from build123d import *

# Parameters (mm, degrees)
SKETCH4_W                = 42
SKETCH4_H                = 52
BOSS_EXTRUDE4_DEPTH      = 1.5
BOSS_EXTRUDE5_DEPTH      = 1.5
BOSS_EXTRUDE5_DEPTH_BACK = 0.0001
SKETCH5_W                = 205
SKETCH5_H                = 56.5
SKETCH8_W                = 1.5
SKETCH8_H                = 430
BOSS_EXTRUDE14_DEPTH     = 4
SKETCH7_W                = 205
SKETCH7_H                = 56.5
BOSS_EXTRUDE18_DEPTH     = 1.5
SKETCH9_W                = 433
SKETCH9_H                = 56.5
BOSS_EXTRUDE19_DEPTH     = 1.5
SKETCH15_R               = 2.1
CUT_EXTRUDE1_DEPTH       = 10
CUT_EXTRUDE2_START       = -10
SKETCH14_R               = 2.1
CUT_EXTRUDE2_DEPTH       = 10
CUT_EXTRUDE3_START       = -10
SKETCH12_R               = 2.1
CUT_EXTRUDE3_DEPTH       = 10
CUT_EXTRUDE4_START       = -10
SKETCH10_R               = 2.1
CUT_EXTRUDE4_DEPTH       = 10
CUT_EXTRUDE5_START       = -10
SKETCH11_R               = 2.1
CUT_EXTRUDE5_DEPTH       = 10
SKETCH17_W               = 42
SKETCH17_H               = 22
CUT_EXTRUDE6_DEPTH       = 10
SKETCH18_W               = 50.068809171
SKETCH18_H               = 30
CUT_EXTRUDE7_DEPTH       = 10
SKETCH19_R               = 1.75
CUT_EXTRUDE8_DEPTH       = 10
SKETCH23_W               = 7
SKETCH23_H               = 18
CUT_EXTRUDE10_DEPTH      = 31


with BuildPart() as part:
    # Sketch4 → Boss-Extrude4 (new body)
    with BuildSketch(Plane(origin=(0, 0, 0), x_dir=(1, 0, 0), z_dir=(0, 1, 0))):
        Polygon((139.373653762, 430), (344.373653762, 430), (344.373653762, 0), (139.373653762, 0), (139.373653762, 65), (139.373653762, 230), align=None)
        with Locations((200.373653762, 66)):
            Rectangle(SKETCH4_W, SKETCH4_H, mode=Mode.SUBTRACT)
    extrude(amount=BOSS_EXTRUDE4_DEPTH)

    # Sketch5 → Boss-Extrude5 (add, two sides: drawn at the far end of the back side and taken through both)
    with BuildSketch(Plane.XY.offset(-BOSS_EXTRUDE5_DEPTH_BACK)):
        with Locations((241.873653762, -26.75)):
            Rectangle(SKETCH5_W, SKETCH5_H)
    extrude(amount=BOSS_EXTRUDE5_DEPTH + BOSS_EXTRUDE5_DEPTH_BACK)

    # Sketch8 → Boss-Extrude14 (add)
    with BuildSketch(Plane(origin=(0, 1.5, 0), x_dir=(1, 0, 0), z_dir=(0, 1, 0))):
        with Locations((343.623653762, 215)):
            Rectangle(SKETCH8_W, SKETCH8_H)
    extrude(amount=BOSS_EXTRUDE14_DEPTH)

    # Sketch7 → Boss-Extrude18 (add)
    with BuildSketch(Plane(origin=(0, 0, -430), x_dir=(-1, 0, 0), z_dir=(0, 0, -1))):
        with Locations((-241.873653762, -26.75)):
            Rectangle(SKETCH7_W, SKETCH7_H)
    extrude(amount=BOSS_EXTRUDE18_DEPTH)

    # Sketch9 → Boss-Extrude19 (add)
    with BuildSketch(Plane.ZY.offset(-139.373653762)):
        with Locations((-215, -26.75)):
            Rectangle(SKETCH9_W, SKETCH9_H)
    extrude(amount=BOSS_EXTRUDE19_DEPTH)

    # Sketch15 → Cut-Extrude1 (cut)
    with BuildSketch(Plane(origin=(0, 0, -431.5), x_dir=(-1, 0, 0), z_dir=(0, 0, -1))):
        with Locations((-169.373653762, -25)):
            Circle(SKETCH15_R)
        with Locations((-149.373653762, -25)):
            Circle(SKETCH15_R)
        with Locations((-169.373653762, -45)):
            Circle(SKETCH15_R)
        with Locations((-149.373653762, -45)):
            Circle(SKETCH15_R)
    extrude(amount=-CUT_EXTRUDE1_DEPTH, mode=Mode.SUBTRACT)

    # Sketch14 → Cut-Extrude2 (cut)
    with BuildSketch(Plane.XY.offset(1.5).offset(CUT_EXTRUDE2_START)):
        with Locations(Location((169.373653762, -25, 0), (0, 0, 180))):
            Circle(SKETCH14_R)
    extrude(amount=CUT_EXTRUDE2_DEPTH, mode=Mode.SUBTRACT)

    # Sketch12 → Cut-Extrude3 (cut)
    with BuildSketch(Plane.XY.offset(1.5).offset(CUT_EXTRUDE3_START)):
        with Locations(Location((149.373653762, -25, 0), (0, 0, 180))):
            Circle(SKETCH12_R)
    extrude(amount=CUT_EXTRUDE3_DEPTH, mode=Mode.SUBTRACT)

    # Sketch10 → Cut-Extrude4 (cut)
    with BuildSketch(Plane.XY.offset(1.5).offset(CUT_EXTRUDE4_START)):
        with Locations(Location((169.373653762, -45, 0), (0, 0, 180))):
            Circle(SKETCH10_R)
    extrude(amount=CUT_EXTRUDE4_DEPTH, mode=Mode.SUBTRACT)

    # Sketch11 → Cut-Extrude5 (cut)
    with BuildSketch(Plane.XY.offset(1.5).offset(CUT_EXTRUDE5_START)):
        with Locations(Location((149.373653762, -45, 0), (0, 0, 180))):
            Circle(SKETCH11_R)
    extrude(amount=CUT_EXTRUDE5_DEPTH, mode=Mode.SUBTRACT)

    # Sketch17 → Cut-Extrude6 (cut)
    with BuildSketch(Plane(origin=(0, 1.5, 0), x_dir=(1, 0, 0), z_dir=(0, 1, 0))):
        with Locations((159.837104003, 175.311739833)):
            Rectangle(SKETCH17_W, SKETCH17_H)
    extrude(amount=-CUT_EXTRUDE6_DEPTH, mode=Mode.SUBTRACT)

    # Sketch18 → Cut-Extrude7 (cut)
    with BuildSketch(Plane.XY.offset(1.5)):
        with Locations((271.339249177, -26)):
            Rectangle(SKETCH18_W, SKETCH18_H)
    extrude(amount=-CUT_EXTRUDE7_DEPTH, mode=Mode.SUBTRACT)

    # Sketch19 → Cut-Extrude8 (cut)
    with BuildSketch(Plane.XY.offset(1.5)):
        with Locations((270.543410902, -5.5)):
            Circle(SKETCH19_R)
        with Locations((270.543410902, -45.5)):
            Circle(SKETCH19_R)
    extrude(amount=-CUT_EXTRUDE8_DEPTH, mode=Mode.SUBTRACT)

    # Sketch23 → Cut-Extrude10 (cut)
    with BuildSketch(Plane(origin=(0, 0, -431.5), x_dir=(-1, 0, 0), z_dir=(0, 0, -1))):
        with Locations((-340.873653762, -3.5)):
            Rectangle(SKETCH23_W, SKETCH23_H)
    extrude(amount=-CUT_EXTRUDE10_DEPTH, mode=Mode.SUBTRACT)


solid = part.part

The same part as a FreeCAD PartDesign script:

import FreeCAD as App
import Part
import Sketcher
from FreeCAD import Vector


def add_polygon(sketch, points):
    """Adds a closed chain of lines whose ends are joined by coincident constraints."""
    first, n = sketch.GeometryCount, len(points)
    for a, b in zip(points, points[1:] + points[:1]):
        sketch.addGeometry(Part.LineSegment(App.Vector(*a, 0), App.Vector(*b, 0)), False)
    for i in range(n):
        sketch.addConstraint(Sketcher.Constraint("Coincident", first + i, 2, first + (i + 1) % n, 1))

doc = App.newDocument("Part")
params = doc.addObject("Spreadsheet::Sheet", "Params")
for row, (alias, value) in enumerate([
    ("sketch1_width", "205 mm"),
    ("sketch1_width2", "42 mm"),
    ("sketch1_height", "430 mm"),
    ("sketch1_height2", "52 mm"),
    ("pad1_length", "1.5 mm"),
    ("sketch2_width", "205 mm"),
    ("sketch2_height", "56.5 mm"),
    ("pad2_length", "1.5 mm"),
    ("pad2_length2", "0.0001 mm"),
    ("sketch3_height", "430 mm"),
    ("sketch3_width", "1.5 mm"),
    ("pad3_length", "4 mm"),
    ("sketch4_width", "205 mm"),
    ("sketch4_height", "56.5 mm"),
    ("pad4_length", "1.5 mm"),
    ("sketch5_height", "433 mm"),
    ("sketch5_width", "56.5 mm"),
    ("pad5_length", "1.5 mm"),
    ("sketch6_diameter", "4.2 mm"),
    ("pocket1_length", "10 mm"),
    ("sketch7_diameter", "4.2 mm"),
    ("pocket2_length", "10 mm"),
    ("sketch8_diameter", "4.2 mm"),
    ("pocket3_length", "10 mm"),
    ("sketch9_diameter", "4.2 mm"),
    ("pocket4_length", "10 mm"),
    ("sketch10_diameter", "4.2 mm"),
    ("pocket5_length", "10 mm"),
    ("sketch11_width", "42 mm"),
    ("sketch11_height", "22 mm"),
    ("pocket6_length", "10 mm"),
    ("sketch12_height", "30 mm"),
    ("pocket7_length", "10 mm"),
    ("sketch13_diameter", "3.5 mm"),
    ("pocket8_length", "10 mm"),
    ("sketch14_width", "7 mm"),
    ("sketch14_height", "18 mm"),
    ("pocket9_length", "31 mm"),
], start=1):
    params.set(f"A{row}", alias)
    params.set(f"B{row}", "=" + value)
    params.setAlias(f"B{row}", alias)

body = doc.addObject("PartDesign::Body", "Body")

sketch1 = body.newObject("Sketcher::SketchObject", "Sketch")
sketch1.AttachmentSupport = (doc.getObject("XZ_Plane"), [""])
sketch1.MapMode = "FlatFace"
add_polygon(sketch1, [(344.373654, -430), (139.373654, -430), (139.373654, 0), (344.373654, 0)])
add_polygon(sketch1, [(179.373654, -40), (179.373654, -92), (221.373654, -92), (221.373654, -40)])
sketch1.addConstraint([
    Sketcher.Constraint("Horizontal", 0),
    Sketcher.Constraint("Vertical", 1),
    Sketcher.Constraint("Horizontal", 2),
    Sketcher.Constraint("Vertical", 3),
    Sketcher.Constraint("Vertical", 4),
    Sketcher.Constraint("Horizontal", 5),
    Sketcher.Constraint("Vertical", 6),
    Sketcher.Constraint("Horizontal", 7),
    Sketcher.Constraint("PointOnObject", 1, 2, -1),
    Sketcher.Constraint("DistanceX", 0, 2, 0, 1, 205.0),
    Sketcher.Constraint("DistanceX", 5, 1, 5, 2, 42.0),
    Sketcher.Constraint("DistanceY", 1, 1, 1, 2, 430.0),
    Sketcher.Constraint("DistanceY", 4, 2, 4, 1, 52.0),
    Sketcher.Constraint("DistanceY", 4, 2, -1, 1, 92.0),
    Sketcher.Constraint("DistanceX", 1, 2, 4, 2, 40.0),
    Sketcher.Constraint("DistanceX", -1, 1, 0, 2, 139.373654),
])
sketch1.setExpression("Constraints[17]", "Params.sketch1_width")
sketch1.setExpression("Constraints[18]", "Params.sketch1_width2")
sketch1.setExpression("Constraints[19]", "Params.sketch1_height")
sketch1.setExpression("Constraints[20]", "Params.sketch1_height2")
pad1 = body.newObject("PartDesign::Pad", "Pad")
pad1.Profile = sketch1
pad1.setExpression("Length", "Params.pad1_length")
pad1.Reversed = True

sketch2 = body.newObject("Sketcher::SketchObject", "Sketch001")
sketch2.AttachmentSupport = (doc.getObject("XY_Plane"), [""])
sketch2.MapMode = "FlatFace"
add_polygon(sketch2, [(139.373654, 1.5), (139.373654, -55), (344.373654, -55), (344.373654, 1.5)])
sketch2.addConstraint([
    Sketcher.Constraint("Vertical", 0),
    Sketcher.Constraint("Horizontal", 1),
    Sketcher.Constraint("Vertical", 2),
    Sketcher.Constraint("Horizontal", 3),
    Sketcher.Constraint("DistanceX", 1, 1, 1, 2, 205.0),
    Sketcher.Constraint("DistanceY", 0, 2, 0, 1, 56.5),
    Sketcher.Constraint("DistanceY", 0, 2, -1, 1, 55.0),
    Sketcher.Constraint("DistanceX", -1, 1, 0, 2, 139.373654),
])
sketch2.setExpression("Constraints[8]", "Params.sketch2_width")
sketch2.setExpression("Constraints[9]", "Params.sketch2_height")
pad2 = body.newObject("PartDesign::Pad", "Pad001")
pad2.Profile = sketch2
pad2.Type = "TwoLengths"
pad2.setExpression("Length", "Params.pad2_length")
pad2.setExpression("Length2", "Params.pad2_length2")

sketch3 = body.newObject("Sketcher::SketchObject", "Sketch002")
sketch3.AttachmentSupport = (doc.getObject("XZ_Plane"), [""])
sketch3.MapMode = "FlatFace"
sketch3.AttachmentOffset = App.Placement(Vector(0, 0, -1.5), App.Rotation())
add_polygon(sketch3, [(342.873654, -430), (342.873654, 0), (344.373654, 0), (344.373654, -430)])
sketch3.addConstraint([
    Sketcher.Constraint("Vertical", 0),
    Sketcher.Constraint("Horizontal", 1),
    Sketcher.Constraint("Vertical", 2),
    Sketcher.Constraint("Horizontal", 3),
    Sketcher.Constraint("PointOnObject", 0, 2, -1),
    Sketcher.Constraint("DistanceY", 0, 1, 0, 2, 430.0),
    Sketcher.Constraint("DistanceX", 1, 1, 1, 2, 1.5),
    Sketcher.Constraint("DistanceX", -1, 1, 0, 2, 342.873654),
])
sketch3.setExpression("Constraints[9]", "Params.sketch3_height")
sketch3.setExpression("Constraints[10]", "Params.sketch3_width")
pad3 = body.newObject("PartDesign::Pad", "Pad002")
pad3.Profile = sketch3
pad3.setExpression("Length", "Params.pad3_length")
pad3.Reversed = True

sketch4 = body.newObject("Sketcher::SketchObject", "Sketch003")
sketch4.AttachmentSupport = (doc.getObject("XY_Plane"), [""])
sketch4.MapMode = "FlatFace"
sketch4.AttachmentOffset = App.Placement(Vector(0, 0, -430), App.Rotation())
add_polygon(sketch4, [(344.373654, 1.5), (344.373654, -55), (139.373654, -55), (139.373654, 1.5)])
sketch4.addConstraint([
    Sketcher.Constraint("Vertical", 0),
    Sketcher.Constraint("Horizontal", 1),
    Sketcher.Constraint("Vertical", 2),
    Sketcher.Constraint("Horizontal", 3),
    Sketcher.Constraint("DistanceX", 1, 2, 1, 1, 205.0),
    Sketcher.Constraint("DistanceY", 0, 2, 0, 1, 56.5),
    Sketcher.Constraint("DistanceY", 0, 2, -1, 1, 55.0),
    Sketcher.Constraint("DistanceX", -1, 1, 0, 2, 344.373654),
])
sketch4.setExpression("Constraints[8]", "Params.sketch4_width")
sketch4.setExpression("Constraints[9]", "Params.sketch4_height")
pad4 = body.newObject("PartDesign::Pad", "Pad003")
pad4.Profile = sketch4
pad4.setExpression("Length", "Params.pad4_length")
pad4.Reversed = True

sketch5 = body.newObject("Sketcher::SketchObject", "Sketch004")
sketch5.AttachmentSupport = (doc.getObject("YZ_Plane"), [""])
sketch5.MapMode = "FlatFace"
sketch5.AttachmentOffset = App.Placement(Vector(0, 0, 139.373654), App.Rotation())
add_polygon(sketch5, [(1.5, -431.5), (-55, -431.5), (-55, 1.5), (1.5, 1.5)])
sketch5.addConstraint([
    Sketcher.Constraint("Horizontal", 0),
    Sketcher.Constraint("Vertical", 1),
    Sketcher.Constraint("Horizontal", 2),
    Sketcher.Constraint("Vertical", 3),
    Sketcher.Constraint("DistanceY", 1, 1, 1, 2, 433.0),
    Sketcher.Constraint("DistanceX", 0, 2, 0, 1, 56.5),
    Sketcher.Constraint("DistanceX", 0, 2, -1, 1, 55.0),
    Sketcher.Constraint("DistanceY", 0, 2, -1, 1, 431.5),
])
sketch5.setExpression("Constraints[8]", "Params.sketch5_height")
sketch5.setExpression("Constraints[9]", "Params.sketch5_width")
pad5 = body.newObject("PartDesign::Pad", "Pad004")
pad5.Profile = sketch5
pad5.setExpression("Length", "Params.pad5_length")
pad5.Reversed = True

sketch6 = body.newObject("Sketcher::SketchObject", "Sketch005")
sketch6.AttachmentSupport = (doc.getObject("XY_Plane"), [""])
sketch6.MapMode = "FlatFace"
sketch6.AttachmentOffset = App.Placement(Vector(0, 0, -431.5), App.Rotation())
sketch6.addGeometry([
    Part.Circle(Vector(169.373654, -25, 0), Vector(0, 0, 1), 2.1),
    Part.Circle(Vector(149.373654, -25, 0), Vector(0, 0, 1), 2.1),
    Part.Circle(Vector(169.373654, -45, 0), Vector(0, 0, 1), 2.1),
    Part.Circle(Vector(149.373654, -45, 0), Vector(0, 0, 1), 2.1),
], False)
sketch6.addConstraint([
    Sketcher.Constraint("Equal", 0, 1),
    Sketcher.Constraint("Equal", 1, 2),
    Sketcher.Constraint("Equal", 2, 3),
    Sketcher.Constraint("Horizontal", 0, 3, 1, 3),
    Sketcher.Constraint("Horizontal", 2, 3, 3, 3),
    Sketcher.Constraint("Vertical", 0, 3, 2, 3),
    Sketcher.Constraint("Vertical", 1, 3, 3, 3),
    Sketcher.Constraint("Diameter", 0, 4.2),
    Sketcher.Constraint("DistanceY", 0, 3, -1, 1, 25.0),
    Sketcher.Constraint("DistanceY", 2, 3, -1, 1, 45.0),
    Sketcher.Constraint("DistanceX", 1, 3, 0, 3, 20.0),
    Sketcher.Constraint("DistanceX", -1, 1, 0, 3, 169.373654),
])
sketch6.setExpression("Constraints[7]", "Params.sketch6_diameter")
pocket1 = body.newObject("PartDesign::Pocket", "Pocket")
pocket1.Profile = sketch6
pocket1.setExpression("Length", "Params.pocket1_length")
pocket1.Reversed = True

sketch7 = body.newObject("Sketcher::SketchObject", "Sketch006")
sketch7.AttachmentSupport = (doc.getObject("XY_Plane"), [""])
sketch7.MapMode = "FlatFace"
sketch7.AttachmentOffset = App.Placement(Vector(0, 0, -8.5), App.Rotation())
sketch7.addGeometry(Part.Circle(Vector(169.373654, -25, 0), Vector(0, 0, 1), 2.1), False)
sketch7.addConstraint([
    Sketcher.Constraint("Diameter", 0, 4.2),
    Sketcher.Constraint("DistanceY", 0, 3, -1, 1, 25.0),
    Sketcher.Constraint("DistanceX", -1, 1, 0, 3, 169.373654),
])
sketch7.setExpression("Constraints[0]", "Params.sketch7_diameter")
pocket2 = body.newObject("PartDesign::Pocket", "Pocket001")
pocket2.Profile = sketch7
pocket2.setExpression("Length", "Params.pocket2_length")
pocket2.Reversed = True

sketch8 = body.newObject("Sketcher::SketchObject", "Sketch007")
sketch8.AttachmentSupport = (doc.getObject("XY_Plane"), [""])
sketch8.MapMode = "FlatFace"
sketch8.AttachmentOffset = App.Placement(Vector(0, 0, -8.5), App.Rotation())
sketch8.addGeometry(Part.Circle(Vector(149.373654, -25, 0), Vector(0, 0, 1), 2.1), False)
sketch8.addConstraint([
    Sketcher.Constraint("Diameter", 0, 4.2),
    Sketcher.Constraint("DistanceY", 0, 3, -1, 1, 25.0),
    Sketcher.Constraint("DistanceX", -1, 1, 0, 3, 149.373654),
])
sketch8.setExpression("Constraints[0]", "Params.sketch8_diameter")
pocket3 = body.newObject("PartDesign::Pocket", "Pocket002")
pocket3.Profile = sketch8
pocket3.setExpression("Length", "Params.pocket3_length")
pocket3.Reversed = True

sketch9 = body.newObject("Sketcher::SketchObject", "Sketch008")
sketch9.AttachmentSupport = (doc.getObject("XY_Plane"), [""])
sketch9.MapMode = "FlatFace"
sketch9.AttachmentOffset = App.Placement(Vector(0, 0, -8.5), App.Rotation())
sketch9.addGeometry(Part.Circle(Vector(169.373654, -45, 0), Vector(0, 0, 1), 2.1), False)
sketch9.addConstraint([
    Sketcher.Constraint("Diameter", 0, 4.2),
    Sketcher.Constraint("DistanceY", 0, 3, -1, 1, 45.0),
    Sketcher.Constraint("DistanceX", -1, 1, 0, 3, 169.373654),
])
sketch9.setExpression("Constraints[0]", "Params.sketch9_diameter")
pocket4 = body.newObject("PartDesign::Pocket", "Pocket003")
pocket4.Profile = sketch9
pocket4.setExpression("Length", "Params.pocket4_length")
pocket4.Reversed = True

sketch10 = body.newObject("Sketcher::SketchObject", "Sketch009")
sketch10.AttachmentSupport = (doc.getObject("XY_Plane"), [""])
sketch10.MapMode = "FlatFace"
sketch10.AttachmentOffset = App.Placement(Vector(0, 0, -8.5), App.Rotation())
sketch10.addGeometry(Part.Circle(Vector(149.373654, -45, 0), Vector(0, 0, 1), 2.1), False)
sketch10.addConstraint([
    Sketcher.Constraint("Diameter", 0, 4.2),
    Sketcher.Constraint("DistanceY", 0, 3, -1, 1, 45.0),
    Sketcher.Constraint("DistanceX", -1, 1, 0, 3, 149.373654),
])
sketch10.setExpression("Constraints[0]", "Params.sketch10_diameter")
pocket5 = body.newObject("PartDesign::Pocket", "Pocket004")
pocket5.Profile = sketch10
pocket5.setExpression("Length", "Params.pocket5_length")
pocket5.Reversed = True

sketch11 = body.newObject("Sketcher::SketchObject", "Sketch010")
sketch11.AttachmentSupport = (doc.getObject("XZ_Plane"), [""])
sketch11.MapMode = "FlatFace"
sketch11.AttachmentOffset = App.Placement(Vector(0, 0, -1.5), App.Rotation())
add_polygon(sketch11, [(138.837104, -186.31174), (138.837104, -164.31174), (180.837104, -164.31174), (180.837104, -186.31174)])
sketch11.addConstraint([
    Sketcher.Constraint("Vertical", 0),
    Sketcher.Constraint("Horizontal", 1),
    Sketcher.Constraint("Vertical", 2),
    Sketcher.Constraint("Horizontal", 3),
    Sketcher.Constraint("DistanceX", 1, 1, 1, 2, 42.0),
    Sketcher.Constraint("DistanceY", 0, 1, 0, 2, 22.0),
    Sketcher.Constraint("DistanceY", 0, 2, -1, 1, 164.31174),
    Sketcher.Constraint("DistanceX", -1, 1, 0, 2, 138.837104),
])
sketch11.setExpression("Constraints[8]", "Params.sketch11_width")
sketch11.setExpression("Constraints[9]", "Params.sketch11_height")
pocket6 = body.newObject("PartDesign::Pocket", "Pocket005")
pocket6.Profile = sketch11
pocket6.setExpression("Length", "Params.pocket6_length")
pocket6.Reversed = True

sketch12 = body.newObject("Sketcher::SketchObject", "Sketch011")
sketch12.AttachmentSupport = (doc.getObject("XY_Plane"), [""])
sketch12.MapMode = "FlatFace"
sketch12.AttachmentOffset = App.Placement(Vector(0, 0, 1.5), App.Rotation())
add_polygon(sketch12, [(246.304845, -11), (246.304845, -41), (296.373654, -41), (296.373654, -11)])
sketch12.addConstraint([
    Sketcher.Constraint("Vertical", 0),
    Sketcher.Constraint("Horizontal", 1),
    Sketcher.Constraint("Vertical", 2),
    Sketcher.Constraint("Horizontal", 3),
    Sketcher.Constraint("DistanceY", 0, 2, 0, 1, 30.0),
    Sketcher.Constraint("DistanceY", 0, 2, -1, 1, 41.0),
    Sketcher.Constraint("DistanceX", 1, 1, 1, 2, 50.068809),
    Sketcher.Constraint("DistanceX", -1, 1, 0, 2, 246.304845),
])
sketch12.setExpression("Constraints[8]", "Params.sketch12_height")
pocket7 = body.newObject("PartDesign::Pocket", "Pocket006")
pocket7.Profile = sketch12
pocket7.setExpression("Length", "Params.pocket7_length")

sketch13 = body.newObject("Sketcher::SketchObject", "Sketch012")
sketch13.AttachmentSupport = (doc.getObject("XY_Plane"), [""])
sketch13.MapMode = "FlatFace"
sketch13.AttachmentOffset = App.Placement(Vector(0, 0, 1.5), App.Rotation())
sketch13.addGeometry([
    Part.Circle(Vector(270.543411, -5.5, 0), Vector(0, 0, 1), 1.75),
    Part.Circle(Vector(270.543411, -45.5, 0), Vector(0, 0, 1), 1.75),
], False)
sketch13.addConstraint([
    Sketcher.Constraint("Equal", 0, 1),
    Sketcher.Constraint("Vertical", 0, 3, 1, 3),
    Sketcher.Constraint("Diameter", 0, 3.5),
    Sketcher.Constraint("DistanceY", 1, 3, 0, 3, 40.0),
    Sketcher.Constraint("DistanceY", 0, 3, -1, 1, 5.5),
    Sketcher.Constraint("DistanceX", -1, 1, 0, 3, 270.543411),
])
sketch13.setExpression("Constraints[2]", "Params.sketch13_diameter")
pocket8 = body.newObject("PartDesign::Pocket", "Pocket007")
pocket8.Profile = sketch13
pocket8.setExpression("Length", "Params.pocket8_length")

sketch14 = body.newObject("Sketcher::SketchObject", "Sketch013")
sketch14.AttachmentSupport = (doc.getObject("XY_Plane"), [""])
sketch14.MapMode = "FlatFace"
sketch14.AttachmentOffset = App.Placement(Vector(0, 0, -431.5), App.Rotation())
add_polygon(sketch14, [(344.373654, 5.5), (344.373654, -12.5), (337.373654, -12.5), (337.373654, 5.5)])
sketch14.addConstraint([
    Sketcher.Constraint("Vertical", 0),
    Sketcher.Constraint("Horizontal", 1),
    Sketcher.Constraint("Vertical", 2),
    Sketcher.Constraint("Horizontal", 3),
    Sketcher.Constraint("DistanceX", 1, 2, 1, 1, 7.0),
    Sketcher.Constraint("DistanceY", 0, 2, 0, 1, 18.0),
    Sketcher.Constraint("DistanceY", 0, 2, -1, 1, 12.5),
    Sketcher.Constraint("DistanceX", -1, 1, 0, 2, 344.373654),
])
sketch14.setExpression("Constraints[8]", "Params.sketch14_width")
sketch14.setExpression("Constraints[9]", "Params.sketch14_height")
pocket9 = body.newObject("PartDesign::Pocket", "Pocket008")
pocket9.Profile = sketch14
pocket9.setExpression("Length", "Params.pocket9_length")
pocket9.Reversed = True

doc.recompute()
